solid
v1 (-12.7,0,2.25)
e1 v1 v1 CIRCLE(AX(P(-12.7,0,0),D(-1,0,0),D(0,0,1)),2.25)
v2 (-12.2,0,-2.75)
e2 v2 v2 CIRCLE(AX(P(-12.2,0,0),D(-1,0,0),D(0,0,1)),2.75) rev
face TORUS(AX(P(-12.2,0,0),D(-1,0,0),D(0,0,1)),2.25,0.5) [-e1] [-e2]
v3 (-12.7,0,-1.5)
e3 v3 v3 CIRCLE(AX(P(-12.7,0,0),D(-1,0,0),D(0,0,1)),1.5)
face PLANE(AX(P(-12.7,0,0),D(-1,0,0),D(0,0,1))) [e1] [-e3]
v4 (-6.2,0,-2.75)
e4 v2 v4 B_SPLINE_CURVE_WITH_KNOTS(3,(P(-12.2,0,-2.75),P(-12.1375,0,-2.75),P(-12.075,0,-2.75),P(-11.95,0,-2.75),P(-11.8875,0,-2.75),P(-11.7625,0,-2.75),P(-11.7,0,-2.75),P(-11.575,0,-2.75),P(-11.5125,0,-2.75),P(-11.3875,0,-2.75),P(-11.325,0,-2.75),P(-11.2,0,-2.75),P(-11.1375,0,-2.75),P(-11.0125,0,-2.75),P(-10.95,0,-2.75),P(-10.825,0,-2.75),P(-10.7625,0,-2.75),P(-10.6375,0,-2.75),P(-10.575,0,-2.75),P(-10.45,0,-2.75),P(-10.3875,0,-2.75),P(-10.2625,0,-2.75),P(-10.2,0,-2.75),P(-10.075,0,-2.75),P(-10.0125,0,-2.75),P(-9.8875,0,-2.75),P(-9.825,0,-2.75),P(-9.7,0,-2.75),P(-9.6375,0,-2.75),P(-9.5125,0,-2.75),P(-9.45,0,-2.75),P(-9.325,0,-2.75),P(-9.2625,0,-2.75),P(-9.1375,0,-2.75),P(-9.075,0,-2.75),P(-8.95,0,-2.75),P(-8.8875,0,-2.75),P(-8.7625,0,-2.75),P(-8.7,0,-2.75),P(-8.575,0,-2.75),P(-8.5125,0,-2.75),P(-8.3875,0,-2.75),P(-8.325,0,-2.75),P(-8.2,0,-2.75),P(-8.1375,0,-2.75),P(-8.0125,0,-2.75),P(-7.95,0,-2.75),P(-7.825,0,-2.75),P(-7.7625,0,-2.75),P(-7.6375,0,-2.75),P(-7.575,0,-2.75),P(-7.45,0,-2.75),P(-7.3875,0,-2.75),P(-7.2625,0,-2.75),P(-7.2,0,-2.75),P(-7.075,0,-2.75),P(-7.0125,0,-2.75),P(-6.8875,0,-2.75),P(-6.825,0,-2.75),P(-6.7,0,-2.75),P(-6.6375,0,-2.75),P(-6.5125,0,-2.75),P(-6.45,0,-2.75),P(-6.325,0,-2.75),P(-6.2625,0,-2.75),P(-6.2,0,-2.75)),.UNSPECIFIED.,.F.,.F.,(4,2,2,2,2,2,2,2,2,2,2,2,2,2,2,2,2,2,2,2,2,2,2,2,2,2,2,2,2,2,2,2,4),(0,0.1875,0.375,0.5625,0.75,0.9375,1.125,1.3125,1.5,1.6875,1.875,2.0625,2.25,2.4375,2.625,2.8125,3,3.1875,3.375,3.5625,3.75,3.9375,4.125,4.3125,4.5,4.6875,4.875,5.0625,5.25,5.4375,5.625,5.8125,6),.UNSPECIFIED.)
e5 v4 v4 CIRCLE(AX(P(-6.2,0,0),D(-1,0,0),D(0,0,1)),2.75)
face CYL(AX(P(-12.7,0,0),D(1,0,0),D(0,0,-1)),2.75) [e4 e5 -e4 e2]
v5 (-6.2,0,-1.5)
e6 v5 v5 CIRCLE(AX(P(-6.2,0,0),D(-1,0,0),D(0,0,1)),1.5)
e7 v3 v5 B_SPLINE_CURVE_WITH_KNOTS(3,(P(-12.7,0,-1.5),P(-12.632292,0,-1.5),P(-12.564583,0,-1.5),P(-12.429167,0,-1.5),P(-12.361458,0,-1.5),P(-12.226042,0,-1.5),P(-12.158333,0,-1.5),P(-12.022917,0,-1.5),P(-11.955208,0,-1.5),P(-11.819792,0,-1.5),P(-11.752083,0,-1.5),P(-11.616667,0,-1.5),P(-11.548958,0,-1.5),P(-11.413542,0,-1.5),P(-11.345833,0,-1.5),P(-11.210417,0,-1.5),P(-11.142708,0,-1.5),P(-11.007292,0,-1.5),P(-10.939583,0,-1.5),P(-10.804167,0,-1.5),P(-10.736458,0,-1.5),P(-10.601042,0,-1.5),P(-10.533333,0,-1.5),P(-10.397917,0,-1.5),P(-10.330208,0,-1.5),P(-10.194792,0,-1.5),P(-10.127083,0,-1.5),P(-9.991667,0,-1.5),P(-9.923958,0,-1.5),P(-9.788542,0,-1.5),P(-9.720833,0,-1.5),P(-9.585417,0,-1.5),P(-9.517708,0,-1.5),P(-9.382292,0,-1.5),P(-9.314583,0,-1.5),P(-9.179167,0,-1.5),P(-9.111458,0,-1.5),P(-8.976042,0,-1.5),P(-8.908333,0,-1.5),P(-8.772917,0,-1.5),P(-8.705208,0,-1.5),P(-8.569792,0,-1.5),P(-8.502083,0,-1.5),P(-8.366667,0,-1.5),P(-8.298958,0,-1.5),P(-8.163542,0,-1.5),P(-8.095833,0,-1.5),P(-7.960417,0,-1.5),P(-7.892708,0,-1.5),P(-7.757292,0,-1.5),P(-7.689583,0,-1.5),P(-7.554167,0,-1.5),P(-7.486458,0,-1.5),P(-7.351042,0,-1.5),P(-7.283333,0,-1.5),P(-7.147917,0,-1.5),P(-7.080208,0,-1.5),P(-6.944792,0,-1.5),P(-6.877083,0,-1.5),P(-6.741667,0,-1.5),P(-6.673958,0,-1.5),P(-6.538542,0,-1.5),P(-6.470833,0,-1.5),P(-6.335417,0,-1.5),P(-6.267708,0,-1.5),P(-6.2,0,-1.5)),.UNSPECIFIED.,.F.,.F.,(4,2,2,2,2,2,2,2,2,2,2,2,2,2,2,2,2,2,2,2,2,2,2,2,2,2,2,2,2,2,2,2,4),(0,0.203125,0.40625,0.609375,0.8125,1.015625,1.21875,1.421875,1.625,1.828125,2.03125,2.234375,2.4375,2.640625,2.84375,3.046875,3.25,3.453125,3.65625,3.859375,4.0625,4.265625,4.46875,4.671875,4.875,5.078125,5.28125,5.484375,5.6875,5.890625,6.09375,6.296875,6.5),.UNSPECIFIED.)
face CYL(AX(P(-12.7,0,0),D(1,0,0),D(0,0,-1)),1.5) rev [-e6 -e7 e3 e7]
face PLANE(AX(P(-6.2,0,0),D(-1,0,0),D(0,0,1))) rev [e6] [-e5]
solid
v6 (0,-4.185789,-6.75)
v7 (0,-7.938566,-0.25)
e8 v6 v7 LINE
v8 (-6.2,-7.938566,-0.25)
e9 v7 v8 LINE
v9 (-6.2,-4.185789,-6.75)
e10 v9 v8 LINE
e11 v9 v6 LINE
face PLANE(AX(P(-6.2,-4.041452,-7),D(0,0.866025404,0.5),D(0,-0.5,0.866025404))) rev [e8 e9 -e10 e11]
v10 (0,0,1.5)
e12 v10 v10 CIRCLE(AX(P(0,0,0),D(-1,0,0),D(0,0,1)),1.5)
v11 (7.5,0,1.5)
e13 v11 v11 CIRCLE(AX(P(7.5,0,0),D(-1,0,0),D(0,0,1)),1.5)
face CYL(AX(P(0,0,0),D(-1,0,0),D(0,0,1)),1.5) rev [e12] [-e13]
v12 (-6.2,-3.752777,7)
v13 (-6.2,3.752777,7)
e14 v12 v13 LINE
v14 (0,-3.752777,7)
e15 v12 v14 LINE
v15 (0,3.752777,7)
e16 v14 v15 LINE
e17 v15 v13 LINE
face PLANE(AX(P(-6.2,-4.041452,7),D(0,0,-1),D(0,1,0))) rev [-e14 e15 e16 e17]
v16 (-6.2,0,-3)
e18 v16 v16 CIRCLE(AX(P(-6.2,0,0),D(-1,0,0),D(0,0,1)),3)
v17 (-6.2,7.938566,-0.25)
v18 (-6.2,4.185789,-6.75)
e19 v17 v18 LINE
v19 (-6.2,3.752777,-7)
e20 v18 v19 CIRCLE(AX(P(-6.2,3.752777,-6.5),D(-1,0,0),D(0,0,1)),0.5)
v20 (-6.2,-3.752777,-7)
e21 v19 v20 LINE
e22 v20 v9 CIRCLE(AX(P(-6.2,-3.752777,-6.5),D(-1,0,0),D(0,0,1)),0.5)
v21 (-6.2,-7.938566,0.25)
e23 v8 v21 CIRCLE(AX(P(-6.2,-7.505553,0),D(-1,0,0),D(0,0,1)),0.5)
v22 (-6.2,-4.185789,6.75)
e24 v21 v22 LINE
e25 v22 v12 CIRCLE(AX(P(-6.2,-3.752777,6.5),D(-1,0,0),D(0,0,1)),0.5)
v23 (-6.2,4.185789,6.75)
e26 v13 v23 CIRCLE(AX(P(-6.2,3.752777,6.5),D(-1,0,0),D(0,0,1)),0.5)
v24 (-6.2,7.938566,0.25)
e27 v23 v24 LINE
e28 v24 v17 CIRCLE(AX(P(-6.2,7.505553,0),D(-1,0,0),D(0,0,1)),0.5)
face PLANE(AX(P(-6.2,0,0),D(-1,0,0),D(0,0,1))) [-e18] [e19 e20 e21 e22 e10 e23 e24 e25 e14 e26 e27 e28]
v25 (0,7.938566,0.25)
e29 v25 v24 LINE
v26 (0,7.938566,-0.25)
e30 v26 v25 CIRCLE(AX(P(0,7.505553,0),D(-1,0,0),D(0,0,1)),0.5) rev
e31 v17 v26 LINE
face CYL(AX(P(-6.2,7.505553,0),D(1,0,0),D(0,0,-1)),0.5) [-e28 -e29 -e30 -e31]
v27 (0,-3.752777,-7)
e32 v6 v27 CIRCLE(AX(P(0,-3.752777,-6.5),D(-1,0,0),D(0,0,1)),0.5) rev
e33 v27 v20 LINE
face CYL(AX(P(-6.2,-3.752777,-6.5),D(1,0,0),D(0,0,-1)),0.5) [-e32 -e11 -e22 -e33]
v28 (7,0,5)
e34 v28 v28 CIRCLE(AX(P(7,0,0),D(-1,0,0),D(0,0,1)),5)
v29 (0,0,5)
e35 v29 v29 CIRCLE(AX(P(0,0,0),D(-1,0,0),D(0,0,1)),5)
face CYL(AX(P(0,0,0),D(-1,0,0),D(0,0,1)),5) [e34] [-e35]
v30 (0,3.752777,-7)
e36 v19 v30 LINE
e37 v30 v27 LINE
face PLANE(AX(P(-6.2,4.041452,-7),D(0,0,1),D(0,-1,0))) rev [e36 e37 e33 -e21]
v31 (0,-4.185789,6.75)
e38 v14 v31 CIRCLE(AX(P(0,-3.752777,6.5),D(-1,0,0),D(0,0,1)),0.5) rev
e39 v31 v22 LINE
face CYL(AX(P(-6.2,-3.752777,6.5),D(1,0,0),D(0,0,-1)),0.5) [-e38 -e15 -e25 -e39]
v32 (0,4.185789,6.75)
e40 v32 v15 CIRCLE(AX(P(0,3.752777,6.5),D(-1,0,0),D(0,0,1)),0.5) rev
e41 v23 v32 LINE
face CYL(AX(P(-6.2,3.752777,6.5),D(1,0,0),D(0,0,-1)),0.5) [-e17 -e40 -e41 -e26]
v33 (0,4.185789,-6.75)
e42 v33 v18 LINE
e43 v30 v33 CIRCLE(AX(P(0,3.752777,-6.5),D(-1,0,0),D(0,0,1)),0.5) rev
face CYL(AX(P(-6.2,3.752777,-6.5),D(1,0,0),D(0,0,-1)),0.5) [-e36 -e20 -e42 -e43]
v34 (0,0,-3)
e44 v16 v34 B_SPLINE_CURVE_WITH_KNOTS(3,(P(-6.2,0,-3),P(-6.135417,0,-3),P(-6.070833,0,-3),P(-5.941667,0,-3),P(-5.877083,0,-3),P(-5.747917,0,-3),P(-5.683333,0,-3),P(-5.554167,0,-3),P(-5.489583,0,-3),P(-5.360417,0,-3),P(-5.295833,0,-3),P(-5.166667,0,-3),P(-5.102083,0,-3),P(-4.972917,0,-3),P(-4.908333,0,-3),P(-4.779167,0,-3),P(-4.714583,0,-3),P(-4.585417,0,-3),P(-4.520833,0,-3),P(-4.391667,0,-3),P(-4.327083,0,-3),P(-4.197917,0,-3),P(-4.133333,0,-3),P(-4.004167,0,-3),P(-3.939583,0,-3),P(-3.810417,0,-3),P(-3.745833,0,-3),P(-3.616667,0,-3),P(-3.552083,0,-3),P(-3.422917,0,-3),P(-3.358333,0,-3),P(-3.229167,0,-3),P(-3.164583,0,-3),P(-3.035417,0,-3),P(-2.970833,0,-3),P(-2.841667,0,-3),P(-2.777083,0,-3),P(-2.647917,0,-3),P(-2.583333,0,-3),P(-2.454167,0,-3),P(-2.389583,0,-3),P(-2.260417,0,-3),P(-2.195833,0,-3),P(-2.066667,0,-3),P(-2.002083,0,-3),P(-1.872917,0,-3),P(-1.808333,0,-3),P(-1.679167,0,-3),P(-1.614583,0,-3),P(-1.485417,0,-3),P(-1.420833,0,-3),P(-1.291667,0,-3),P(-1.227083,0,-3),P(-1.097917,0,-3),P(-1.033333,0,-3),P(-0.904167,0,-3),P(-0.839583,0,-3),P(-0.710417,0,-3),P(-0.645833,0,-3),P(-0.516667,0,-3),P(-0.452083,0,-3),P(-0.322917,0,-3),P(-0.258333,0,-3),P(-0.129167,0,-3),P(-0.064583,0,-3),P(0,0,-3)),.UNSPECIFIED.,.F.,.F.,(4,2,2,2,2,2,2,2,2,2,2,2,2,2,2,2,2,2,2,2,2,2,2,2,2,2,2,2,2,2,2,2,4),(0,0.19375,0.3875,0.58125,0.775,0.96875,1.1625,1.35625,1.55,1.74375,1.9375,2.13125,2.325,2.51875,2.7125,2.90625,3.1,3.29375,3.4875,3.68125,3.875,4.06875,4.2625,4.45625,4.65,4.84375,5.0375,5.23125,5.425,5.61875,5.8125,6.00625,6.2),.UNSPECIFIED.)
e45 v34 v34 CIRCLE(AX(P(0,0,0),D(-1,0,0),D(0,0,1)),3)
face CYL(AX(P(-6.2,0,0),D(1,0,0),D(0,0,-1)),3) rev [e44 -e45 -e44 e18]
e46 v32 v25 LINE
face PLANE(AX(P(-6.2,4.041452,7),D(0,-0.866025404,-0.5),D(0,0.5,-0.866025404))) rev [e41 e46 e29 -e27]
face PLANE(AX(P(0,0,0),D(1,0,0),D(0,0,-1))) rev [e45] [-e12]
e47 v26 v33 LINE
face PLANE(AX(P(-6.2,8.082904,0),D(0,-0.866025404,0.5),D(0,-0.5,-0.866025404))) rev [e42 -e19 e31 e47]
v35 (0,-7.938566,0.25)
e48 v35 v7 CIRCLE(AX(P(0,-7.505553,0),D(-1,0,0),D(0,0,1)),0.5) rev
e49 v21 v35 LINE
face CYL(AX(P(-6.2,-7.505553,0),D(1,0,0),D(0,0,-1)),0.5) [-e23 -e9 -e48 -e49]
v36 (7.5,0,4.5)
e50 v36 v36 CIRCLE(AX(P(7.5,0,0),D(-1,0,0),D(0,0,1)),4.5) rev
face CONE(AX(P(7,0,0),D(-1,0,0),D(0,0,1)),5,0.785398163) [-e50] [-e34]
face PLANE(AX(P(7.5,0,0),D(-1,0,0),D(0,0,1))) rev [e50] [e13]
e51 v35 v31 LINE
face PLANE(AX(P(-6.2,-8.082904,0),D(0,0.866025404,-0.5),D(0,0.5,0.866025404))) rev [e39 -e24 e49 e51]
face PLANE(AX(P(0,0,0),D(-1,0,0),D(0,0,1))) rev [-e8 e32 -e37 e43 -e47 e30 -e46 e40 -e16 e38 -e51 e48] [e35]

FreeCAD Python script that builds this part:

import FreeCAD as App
import Part
import Sketcher
Q = App.Units.Quantity


def edges_at(feature, points):
    """Names of the edges that pass closest to the given points."""
    edges = feature.Shape.Edges
    near = lambda p: min(range(len(edges)), key=lambda i: edges[i].distToShape(Part.Vertex(*p))[0])
    return sorted({f"Edge{near(p) + 1}" for p in points})


def add_polygon(sketch, points):
    """Adds a closed chain of lines whose ends are joined by coincident constraints."""
    first, n = sketch.GeometryCount, len(points)
    for a, b in zip(points, points[1:] + points[:1]):
        sketch.addGeometry(Part.LineSegment(App.Vector(*a, 0), App.Vector(*b, 0)), False)
    for i in range(n):
        sketch.addConstraint(Sketcher.Constraint("Coincident", first + i, 2, first + (i + 1) % n, 1))

doc = App.newDocument("Part")
body = doc.addObject("PartDesign::Body", "Body")

# Sketch on XY plane
sketch1 = body.newObject("Sketcher::SketchObject", "Sketch")
sketch1.AttachmentSupport = (doc.getObject("XY_Plane"), [""])
sketch1.MapMode = "FlatFace"
add_polygon(sketch1, [(0, 5), (0, 1.5), (7.5, 1.5), (7.5, 5)])  # lines 0-3
sketch1.addConstraint([
    Sketcher.Constraint("Vertical", 0),
    Sketcher.Constraint("Horizontal", 1),
    Sketcher.Constraint("Vertical", 2),
    Sketcher.Constraint("Horizontal", 3),
    Sketcher.Constraint("PointOnObject", 0, 2, -2),
    Sketcher.Constraint("DistanceX", 1, 1, 1, 2, Q("7.5 mm")),
    Sketcher.Constraint("DistanceY", 0, 2, 0, 1, Q("3.5 mm")),
    Sketcher.Constraint("DistanceY", -1, 1, 2, 2, Q("5 mm")),
])
revolution = body.newObject("PartDesign::Revolution", "Revolution")
revolution.Profile = sketch1
revolution.ReferenceAxis = (sketch1, ["H_Axis"])
revolution.Angle = 360

# Sketch on YZ plane
sketch2 = body.newObject("Sketcher::SketchObject", "Sketch001")
sketch2.AttachmentSupport = (doc.getObject("YZ_Plane"), [""])
sketch2.MapMode = "FlatFace"
add_polygon(sketch2, [(8.1, 0), (4, -7), (-4, -7), (-8.1, 0), (-4, 7), (4, 7)])  # lines 0-5
sketch2.addGeometry(Part.Circle(App.Vector(0, 0, 0), App.Vector(0, 0, 1), 3), False)  # 6
sketch2.addConstraint([
    Sketcher.Constraint("Horizontal", 1),
    Sketcher.Constraint("Horizontal", 4),
    Sketcher.Constraint("Coincident", 6, 3, -1, 1),
    Sketcher.Constraint("Symmetric", 0, 2, 3, 2, -1, 1),
    Sketcher.Constraint("Symmetric", 2, 2, 5, 2, -1, 1),
    Sketcher.Constraint("PointOnObject", 2, 2, -1),
    Sketcher.Constraint("Parallel", 2, 5),
    Sketcher.Constraint("Vertical", 1, 2, 3, 2),
    Sketcher.Constraint("Diameter", 6, Q("6 mm")),
    Sketcher.Constraint("Angle", 0, Q("-120 deg")),
    Sketcher.Constraint("DistanceY", 0, 2, -1, 1, Q("7 mm")),
    Sketcher.Constraint("DistanceX", 1, 2, 1, 1, Q("8.082904 mm")),
])
pad1 = body.newObject("PartDesign::Pad", "Pad")
pad1.Profile = sketch2
pad1.Length = 6.2
pad1.Reversed = True
doc.recompute()

chamfer = body.newObject("PartDesign::Chamfer", "Chamfer")
chamfer.Base = (pad1, edges_at(pad1, [(7.5, 0, -5)]))
chamfer.Size = 0.5
doc.recompute()

fillet = body.newObject("PartDesign::Fillet", "Fillet")
fillet.Base = (chamfer, edges_at(chamfer, [
    (-3.1, 4.041, 7),
    (-3.1, 8.083, 0),
    (-3.1, 4.041, -7),
    (-3.1, -4.041, -7),
    (-3.1, -8.083, 0),
    (-3.1, -4.041, 7),
]))
fillet.Radius = 0.5
body2 = doc.addObject("PartDesign::Body", "Body001")

# Sketch on YZ plane
sketch3 = body2.newObject("Sketcher::SketchObject", "Sketch002")
sketch3.AttachmentSupport = (doc.getObject("YZ_Plane001"), [""])
sketch3.MapMode = "FlatFace"
sketch3.AttachmentOffset = App.Placement(App.Vector(0, 0, -6.2), App.Rotation())
sketch3.addGeometry([
    Part.Circle(App.Vector(0, 0, 0), App.Vector(0, 0, 1), 2.8),
    Part.Circle(App.Vector(0, 0, 0), App.Vector(0, 0, 1), 1.5),
], False)
sketch3.addConstraint([
    Sketcher.Constraint("Coincident", 0, 3, -1, 1),
    Sketcher.Constraint("Coincident", 1, 3, -1, 1),
    Sketcher.Constraint("Diameter", 1, Q("3 mm")),
    Sketcher.Constraint("Diameter", 0, Q("5.5 mm")),
])
pad2 = body2.newObject("PartDesign::Pad", "Pad001")
pad2.Profile = sketch3
pad2.Length = 6.5
pad2.Reversed = True
doc.recompute()

fillet2 = body2.newObject("PartDesign::Fillet", "Fillet001")
fillet2.Base = (pad2, edges_at(pad2, [(-12.7, 0, 2.75)]))
fillet2.Radius = 0.5

doc.recompute()
